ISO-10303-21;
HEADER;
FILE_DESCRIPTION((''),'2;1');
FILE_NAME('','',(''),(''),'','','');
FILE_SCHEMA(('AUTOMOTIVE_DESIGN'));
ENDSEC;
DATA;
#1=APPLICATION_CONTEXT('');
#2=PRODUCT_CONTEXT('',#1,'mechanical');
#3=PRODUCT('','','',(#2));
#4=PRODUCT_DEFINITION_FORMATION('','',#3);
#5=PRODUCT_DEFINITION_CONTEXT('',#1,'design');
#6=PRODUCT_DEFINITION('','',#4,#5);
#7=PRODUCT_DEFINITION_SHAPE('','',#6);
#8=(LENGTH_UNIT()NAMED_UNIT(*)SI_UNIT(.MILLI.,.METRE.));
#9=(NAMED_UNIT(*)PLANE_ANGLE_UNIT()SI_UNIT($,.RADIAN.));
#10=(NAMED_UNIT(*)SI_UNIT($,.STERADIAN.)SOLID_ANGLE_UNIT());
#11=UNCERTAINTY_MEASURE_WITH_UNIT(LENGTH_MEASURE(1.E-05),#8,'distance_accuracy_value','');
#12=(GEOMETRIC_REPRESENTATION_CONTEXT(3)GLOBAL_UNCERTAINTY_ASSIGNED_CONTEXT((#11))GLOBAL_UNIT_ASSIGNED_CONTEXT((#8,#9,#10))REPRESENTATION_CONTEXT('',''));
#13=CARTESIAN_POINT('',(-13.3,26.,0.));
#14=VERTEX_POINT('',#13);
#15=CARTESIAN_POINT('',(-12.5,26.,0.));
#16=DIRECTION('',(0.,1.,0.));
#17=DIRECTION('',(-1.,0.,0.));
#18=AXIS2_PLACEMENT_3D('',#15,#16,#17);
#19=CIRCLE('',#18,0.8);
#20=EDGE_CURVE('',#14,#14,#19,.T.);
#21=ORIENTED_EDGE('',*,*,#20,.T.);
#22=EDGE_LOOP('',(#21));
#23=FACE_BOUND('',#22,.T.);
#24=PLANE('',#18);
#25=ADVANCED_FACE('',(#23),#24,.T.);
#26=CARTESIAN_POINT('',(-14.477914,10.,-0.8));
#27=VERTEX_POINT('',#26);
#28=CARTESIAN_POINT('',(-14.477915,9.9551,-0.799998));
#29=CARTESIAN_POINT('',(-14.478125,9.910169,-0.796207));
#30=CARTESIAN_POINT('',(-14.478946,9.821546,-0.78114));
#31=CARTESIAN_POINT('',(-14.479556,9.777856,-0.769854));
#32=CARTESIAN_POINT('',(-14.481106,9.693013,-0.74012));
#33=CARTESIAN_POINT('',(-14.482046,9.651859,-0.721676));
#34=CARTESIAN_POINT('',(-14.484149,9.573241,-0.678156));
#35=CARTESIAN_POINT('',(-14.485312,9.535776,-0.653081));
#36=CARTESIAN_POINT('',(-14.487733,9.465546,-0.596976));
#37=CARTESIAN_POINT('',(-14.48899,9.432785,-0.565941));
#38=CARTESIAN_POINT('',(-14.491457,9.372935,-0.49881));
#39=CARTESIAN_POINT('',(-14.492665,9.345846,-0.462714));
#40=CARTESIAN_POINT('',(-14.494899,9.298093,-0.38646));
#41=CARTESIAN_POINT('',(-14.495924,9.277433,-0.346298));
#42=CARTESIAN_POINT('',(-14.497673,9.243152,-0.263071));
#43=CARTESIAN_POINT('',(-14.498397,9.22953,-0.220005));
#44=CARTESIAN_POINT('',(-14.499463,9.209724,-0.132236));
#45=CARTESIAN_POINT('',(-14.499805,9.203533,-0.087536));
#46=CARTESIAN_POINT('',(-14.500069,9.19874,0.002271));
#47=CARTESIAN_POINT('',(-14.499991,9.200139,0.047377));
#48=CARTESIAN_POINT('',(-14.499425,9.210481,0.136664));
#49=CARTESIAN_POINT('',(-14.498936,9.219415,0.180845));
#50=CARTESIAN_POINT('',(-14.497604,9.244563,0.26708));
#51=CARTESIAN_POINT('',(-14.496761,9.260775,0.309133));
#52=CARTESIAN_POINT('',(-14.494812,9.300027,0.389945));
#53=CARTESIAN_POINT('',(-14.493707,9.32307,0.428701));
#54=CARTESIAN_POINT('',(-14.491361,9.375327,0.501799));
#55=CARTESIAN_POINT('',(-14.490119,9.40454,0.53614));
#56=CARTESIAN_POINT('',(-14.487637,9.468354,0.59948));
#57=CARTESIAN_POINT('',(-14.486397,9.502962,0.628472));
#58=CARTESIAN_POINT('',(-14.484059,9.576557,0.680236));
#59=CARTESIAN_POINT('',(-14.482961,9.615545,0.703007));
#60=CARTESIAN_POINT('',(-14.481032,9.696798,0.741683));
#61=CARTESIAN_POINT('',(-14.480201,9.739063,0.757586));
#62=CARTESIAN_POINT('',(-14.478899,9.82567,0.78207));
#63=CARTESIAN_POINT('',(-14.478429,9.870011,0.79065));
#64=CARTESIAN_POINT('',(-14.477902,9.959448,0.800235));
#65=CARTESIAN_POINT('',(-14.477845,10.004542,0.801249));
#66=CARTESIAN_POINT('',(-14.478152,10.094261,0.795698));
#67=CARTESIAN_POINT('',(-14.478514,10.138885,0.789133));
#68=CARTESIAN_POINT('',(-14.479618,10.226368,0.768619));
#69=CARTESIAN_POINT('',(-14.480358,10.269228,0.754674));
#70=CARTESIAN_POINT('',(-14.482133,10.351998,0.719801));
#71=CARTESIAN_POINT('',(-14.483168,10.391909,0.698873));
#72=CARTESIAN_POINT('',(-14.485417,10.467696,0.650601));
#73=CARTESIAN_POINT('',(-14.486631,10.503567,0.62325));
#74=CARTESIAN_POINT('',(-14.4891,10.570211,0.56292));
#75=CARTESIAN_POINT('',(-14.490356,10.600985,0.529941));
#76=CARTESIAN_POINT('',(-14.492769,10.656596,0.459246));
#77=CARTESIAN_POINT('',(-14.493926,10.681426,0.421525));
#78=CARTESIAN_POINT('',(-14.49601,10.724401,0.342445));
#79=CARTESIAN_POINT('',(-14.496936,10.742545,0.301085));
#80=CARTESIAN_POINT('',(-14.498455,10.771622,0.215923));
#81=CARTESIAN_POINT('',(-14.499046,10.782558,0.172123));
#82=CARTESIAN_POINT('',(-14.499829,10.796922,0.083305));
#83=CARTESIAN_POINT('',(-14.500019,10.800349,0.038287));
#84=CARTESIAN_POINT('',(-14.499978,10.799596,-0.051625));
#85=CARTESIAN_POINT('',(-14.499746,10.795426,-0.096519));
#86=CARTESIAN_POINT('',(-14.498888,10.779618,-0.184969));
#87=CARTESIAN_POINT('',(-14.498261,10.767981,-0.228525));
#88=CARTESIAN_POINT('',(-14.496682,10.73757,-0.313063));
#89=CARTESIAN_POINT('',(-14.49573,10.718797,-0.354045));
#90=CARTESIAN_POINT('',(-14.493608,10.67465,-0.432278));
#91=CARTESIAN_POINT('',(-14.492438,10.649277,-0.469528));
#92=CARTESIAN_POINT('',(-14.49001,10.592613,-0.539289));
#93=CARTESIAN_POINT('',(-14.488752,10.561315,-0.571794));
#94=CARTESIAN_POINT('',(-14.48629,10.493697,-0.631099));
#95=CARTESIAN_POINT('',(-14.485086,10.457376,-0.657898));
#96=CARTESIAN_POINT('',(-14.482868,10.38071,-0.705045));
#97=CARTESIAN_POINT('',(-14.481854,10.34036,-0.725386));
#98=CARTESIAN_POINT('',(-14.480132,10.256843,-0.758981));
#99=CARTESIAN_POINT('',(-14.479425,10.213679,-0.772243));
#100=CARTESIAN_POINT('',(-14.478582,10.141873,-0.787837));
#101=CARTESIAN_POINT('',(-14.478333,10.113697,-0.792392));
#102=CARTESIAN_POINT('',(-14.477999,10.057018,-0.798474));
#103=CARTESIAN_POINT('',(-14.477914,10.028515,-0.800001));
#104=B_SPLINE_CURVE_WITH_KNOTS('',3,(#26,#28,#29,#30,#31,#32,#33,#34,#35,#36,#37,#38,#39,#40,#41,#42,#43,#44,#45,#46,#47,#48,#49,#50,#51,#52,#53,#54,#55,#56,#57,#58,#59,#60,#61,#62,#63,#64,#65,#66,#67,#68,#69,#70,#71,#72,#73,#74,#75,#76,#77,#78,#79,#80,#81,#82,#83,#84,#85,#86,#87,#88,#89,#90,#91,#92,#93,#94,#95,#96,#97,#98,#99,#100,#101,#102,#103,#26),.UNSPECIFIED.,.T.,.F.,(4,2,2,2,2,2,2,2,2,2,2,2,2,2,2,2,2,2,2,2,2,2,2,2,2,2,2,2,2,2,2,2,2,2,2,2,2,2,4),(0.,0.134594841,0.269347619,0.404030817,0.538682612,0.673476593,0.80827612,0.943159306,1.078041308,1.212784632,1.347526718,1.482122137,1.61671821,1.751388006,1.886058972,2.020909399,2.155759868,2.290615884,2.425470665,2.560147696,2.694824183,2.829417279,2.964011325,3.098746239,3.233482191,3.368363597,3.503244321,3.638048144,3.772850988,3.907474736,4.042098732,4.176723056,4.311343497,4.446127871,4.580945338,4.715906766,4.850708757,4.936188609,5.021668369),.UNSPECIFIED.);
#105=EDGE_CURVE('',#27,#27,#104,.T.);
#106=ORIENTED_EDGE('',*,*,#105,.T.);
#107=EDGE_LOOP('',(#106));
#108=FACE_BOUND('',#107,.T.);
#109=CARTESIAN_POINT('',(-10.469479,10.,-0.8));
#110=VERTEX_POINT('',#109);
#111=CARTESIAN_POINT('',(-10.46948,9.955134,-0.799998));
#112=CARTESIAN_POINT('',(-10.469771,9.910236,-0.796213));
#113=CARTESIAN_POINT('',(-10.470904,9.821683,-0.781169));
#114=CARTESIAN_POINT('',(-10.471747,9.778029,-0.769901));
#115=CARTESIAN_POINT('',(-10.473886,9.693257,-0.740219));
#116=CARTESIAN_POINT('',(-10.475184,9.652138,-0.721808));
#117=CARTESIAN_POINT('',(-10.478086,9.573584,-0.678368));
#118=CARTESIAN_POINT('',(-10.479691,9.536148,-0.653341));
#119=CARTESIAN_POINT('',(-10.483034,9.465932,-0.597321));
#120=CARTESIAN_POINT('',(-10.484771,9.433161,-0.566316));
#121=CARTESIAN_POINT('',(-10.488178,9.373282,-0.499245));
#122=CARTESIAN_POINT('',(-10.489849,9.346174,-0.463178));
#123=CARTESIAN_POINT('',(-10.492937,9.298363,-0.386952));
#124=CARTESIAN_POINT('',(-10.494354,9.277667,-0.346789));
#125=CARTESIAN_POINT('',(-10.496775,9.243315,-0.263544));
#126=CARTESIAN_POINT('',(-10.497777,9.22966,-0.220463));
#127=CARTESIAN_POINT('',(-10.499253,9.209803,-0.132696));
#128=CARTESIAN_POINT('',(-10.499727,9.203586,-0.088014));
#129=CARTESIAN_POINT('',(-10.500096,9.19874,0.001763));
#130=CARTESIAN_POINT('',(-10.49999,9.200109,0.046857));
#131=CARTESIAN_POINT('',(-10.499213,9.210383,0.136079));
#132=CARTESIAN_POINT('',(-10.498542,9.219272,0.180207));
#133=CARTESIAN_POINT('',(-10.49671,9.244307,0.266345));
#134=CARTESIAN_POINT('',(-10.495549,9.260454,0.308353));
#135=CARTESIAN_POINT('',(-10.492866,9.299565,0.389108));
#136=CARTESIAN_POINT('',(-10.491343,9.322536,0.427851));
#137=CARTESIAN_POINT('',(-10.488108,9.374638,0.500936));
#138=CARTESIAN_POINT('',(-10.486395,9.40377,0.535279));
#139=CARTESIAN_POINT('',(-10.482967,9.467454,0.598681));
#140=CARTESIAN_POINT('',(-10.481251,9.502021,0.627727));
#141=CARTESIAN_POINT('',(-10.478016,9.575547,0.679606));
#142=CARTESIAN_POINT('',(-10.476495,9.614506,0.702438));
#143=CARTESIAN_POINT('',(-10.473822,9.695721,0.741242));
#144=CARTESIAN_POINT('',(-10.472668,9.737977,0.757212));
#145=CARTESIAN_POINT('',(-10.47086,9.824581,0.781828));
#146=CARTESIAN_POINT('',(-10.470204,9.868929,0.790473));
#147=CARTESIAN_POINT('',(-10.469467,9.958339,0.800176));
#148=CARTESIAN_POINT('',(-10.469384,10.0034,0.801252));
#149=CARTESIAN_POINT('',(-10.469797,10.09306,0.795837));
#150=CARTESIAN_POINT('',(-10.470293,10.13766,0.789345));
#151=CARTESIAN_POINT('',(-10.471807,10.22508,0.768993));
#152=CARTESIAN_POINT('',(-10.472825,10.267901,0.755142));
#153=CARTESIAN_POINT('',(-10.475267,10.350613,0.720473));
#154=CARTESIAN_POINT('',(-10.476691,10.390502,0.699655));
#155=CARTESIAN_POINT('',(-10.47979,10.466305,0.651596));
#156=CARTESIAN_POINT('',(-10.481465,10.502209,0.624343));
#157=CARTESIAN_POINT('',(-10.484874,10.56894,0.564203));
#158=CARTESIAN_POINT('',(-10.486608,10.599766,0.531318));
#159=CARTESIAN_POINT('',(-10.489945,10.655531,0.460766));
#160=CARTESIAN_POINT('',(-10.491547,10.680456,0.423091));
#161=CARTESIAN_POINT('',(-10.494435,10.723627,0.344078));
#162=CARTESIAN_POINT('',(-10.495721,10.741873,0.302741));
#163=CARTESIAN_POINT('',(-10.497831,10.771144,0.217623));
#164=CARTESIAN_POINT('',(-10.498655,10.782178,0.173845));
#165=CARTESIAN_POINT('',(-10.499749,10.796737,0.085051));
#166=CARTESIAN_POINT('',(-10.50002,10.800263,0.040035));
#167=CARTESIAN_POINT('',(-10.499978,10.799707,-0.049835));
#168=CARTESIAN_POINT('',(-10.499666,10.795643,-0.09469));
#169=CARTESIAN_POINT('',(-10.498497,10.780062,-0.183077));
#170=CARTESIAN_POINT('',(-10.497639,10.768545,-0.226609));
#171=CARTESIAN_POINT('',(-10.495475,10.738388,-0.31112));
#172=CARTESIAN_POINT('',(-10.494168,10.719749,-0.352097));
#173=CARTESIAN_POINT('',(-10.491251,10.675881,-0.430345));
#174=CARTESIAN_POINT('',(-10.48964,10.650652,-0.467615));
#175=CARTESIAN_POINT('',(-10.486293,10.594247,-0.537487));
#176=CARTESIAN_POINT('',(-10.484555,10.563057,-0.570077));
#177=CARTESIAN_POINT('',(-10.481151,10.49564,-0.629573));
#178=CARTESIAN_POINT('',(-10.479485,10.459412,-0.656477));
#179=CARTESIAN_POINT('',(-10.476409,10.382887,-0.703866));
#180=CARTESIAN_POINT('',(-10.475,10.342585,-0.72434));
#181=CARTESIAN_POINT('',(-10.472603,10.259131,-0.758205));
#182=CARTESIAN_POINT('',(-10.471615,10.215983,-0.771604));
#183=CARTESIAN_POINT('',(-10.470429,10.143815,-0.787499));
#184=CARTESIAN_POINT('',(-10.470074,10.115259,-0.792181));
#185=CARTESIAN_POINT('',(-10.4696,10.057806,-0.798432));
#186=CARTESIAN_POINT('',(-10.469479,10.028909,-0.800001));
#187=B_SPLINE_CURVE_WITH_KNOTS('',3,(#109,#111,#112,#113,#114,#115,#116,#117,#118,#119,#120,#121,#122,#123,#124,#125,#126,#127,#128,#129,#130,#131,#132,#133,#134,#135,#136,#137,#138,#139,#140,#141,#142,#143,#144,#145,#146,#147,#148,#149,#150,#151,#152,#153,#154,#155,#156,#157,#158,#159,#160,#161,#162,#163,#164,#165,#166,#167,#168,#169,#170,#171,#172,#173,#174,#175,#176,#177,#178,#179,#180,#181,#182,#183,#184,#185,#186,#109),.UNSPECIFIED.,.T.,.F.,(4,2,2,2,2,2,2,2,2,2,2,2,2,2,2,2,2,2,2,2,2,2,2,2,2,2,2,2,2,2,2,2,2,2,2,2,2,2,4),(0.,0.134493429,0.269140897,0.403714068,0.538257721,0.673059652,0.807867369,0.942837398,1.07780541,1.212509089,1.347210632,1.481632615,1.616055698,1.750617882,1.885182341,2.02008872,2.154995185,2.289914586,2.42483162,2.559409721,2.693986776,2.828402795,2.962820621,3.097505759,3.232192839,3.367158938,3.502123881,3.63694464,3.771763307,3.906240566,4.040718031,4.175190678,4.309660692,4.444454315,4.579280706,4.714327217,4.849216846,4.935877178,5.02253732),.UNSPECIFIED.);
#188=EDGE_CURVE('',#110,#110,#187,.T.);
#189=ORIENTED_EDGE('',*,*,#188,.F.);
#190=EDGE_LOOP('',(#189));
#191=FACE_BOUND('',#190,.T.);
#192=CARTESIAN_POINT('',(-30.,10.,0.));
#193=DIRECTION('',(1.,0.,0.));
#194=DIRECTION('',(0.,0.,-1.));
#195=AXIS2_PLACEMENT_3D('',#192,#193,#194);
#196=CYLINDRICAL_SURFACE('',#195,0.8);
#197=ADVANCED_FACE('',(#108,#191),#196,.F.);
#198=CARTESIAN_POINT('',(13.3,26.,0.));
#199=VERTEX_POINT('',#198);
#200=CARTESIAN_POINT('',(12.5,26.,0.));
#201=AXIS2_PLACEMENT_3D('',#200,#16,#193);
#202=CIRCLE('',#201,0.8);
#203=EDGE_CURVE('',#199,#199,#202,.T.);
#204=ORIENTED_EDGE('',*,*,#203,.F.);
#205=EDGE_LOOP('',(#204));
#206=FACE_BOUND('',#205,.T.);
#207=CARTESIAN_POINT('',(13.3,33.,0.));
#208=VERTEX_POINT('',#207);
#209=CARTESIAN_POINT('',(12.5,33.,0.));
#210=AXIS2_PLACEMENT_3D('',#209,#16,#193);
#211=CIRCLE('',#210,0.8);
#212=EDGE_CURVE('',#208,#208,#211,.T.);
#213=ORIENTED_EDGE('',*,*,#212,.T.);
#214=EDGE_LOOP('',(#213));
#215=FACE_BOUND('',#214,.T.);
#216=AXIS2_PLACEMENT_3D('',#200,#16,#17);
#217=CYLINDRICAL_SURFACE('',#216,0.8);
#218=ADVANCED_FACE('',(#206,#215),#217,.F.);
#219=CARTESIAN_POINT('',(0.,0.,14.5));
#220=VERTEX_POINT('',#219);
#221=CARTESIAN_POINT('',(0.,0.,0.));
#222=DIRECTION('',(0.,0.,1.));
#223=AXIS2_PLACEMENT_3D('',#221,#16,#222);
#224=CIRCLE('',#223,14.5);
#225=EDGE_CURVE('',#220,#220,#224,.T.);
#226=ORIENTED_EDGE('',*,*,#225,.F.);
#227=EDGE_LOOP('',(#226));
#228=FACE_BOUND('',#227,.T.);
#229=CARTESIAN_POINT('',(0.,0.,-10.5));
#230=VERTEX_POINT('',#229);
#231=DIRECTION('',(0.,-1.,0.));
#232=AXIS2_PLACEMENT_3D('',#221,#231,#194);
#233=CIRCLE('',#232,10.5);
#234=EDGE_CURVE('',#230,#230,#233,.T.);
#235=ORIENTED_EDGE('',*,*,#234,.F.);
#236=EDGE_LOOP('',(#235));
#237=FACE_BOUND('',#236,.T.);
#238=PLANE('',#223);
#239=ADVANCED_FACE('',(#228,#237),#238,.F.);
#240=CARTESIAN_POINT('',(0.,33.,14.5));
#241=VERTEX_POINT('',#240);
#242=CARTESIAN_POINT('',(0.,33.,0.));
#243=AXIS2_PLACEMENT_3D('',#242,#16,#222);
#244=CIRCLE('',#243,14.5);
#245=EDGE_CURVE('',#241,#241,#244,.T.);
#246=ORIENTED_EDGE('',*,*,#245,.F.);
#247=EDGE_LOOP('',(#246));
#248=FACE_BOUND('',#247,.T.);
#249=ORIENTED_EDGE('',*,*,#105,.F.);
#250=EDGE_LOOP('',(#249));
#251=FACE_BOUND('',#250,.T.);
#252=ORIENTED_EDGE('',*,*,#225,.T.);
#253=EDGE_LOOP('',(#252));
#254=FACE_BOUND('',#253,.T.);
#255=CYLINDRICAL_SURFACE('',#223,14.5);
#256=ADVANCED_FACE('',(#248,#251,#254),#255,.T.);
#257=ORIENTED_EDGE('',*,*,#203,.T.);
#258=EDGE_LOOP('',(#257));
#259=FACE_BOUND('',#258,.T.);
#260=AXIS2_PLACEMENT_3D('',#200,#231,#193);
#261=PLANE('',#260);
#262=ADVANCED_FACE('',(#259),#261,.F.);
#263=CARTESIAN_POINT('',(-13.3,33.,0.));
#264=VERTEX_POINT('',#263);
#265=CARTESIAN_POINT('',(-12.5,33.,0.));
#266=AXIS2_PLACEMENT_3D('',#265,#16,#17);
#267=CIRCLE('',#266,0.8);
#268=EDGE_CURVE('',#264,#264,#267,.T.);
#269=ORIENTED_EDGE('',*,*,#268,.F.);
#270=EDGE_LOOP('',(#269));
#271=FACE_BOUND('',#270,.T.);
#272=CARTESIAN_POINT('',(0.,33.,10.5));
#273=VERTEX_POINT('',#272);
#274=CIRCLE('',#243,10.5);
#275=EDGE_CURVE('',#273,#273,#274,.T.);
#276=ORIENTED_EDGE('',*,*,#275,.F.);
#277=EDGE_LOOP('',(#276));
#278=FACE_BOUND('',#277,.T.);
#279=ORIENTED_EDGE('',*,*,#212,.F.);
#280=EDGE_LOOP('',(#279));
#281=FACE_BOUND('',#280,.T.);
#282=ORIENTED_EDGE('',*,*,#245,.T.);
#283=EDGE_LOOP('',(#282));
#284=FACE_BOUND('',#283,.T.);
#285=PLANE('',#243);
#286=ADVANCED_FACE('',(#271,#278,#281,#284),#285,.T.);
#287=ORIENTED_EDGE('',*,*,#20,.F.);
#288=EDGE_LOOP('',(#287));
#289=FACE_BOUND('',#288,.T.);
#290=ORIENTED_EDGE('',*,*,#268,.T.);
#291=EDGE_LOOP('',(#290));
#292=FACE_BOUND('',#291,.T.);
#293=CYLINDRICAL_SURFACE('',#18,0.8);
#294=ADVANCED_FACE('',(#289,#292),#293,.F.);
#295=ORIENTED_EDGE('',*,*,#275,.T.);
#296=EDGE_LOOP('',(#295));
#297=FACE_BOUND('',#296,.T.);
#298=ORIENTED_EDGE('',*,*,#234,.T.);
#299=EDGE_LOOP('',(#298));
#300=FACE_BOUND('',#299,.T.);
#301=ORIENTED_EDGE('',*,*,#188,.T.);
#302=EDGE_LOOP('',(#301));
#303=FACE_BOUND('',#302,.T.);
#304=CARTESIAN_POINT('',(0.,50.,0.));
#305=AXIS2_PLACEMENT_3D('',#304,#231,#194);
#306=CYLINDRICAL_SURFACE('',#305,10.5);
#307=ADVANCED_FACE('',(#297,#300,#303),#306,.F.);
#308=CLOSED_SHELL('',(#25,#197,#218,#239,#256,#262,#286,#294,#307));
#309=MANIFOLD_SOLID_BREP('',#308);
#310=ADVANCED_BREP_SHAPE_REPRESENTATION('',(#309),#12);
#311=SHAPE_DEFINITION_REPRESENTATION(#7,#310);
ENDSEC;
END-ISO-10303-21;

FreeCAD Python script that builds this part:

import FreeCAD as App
import Part
import Sketcher
Q = App.Units.Quantity

doc = App.newDocument("Part")
body = doc.addObject("PartDesign::Body", "Body")

# Sketch on XZ plane
sketch1 = body.newObject("Sketcher::SketchObject", "Sketch")
sketch1.AttachmentSupport = (doc.getObject("XZ_Plane"), [""])
sketch1.MapMode = "FlatFace"
sketch1.addGeometry([
    Part.Circle(App.Vector(0, 0, 0), App.Vector(0, 0, 1), 13),
    Part.Circle(App.Vector(0, 0, 0), App.Vector(0, 0, 1), 9),
], False)
sketch1.addConstraint([
    Sketcher.Constraint("Coincident", 0, 3, -1, 1),
    Sketcher.Constraint("Coincident", 1, 3, -1, 1),
    Sketcher.Constraint("Diameter", 0, Q("26 mm")),
    Sketcher.Constraint("Diameter", 1, Q("18.344 mm")),
])
pad1 = body.newObject("PartDesign::Pad", "Pad")
pad1.Profile = sketch1
pad1.Length = 25
pad1.Reversed = True

# Sketch on XZ plane
sketch2 = body.newObject("Sketcher::SketchObject", "Sketch001")
sketch2.AttachmentSupport = (doc.getObject("XZ_Plane"), [""])
sketch2.MapMode = "FlatFace"
sketch2.addGeometry(Part.Circle(App.Vector(0, 0, 0), App.Vector(0, 0, 1), 10), False)
sketch2.addConstraint([
    Sketcher.Constraint("Coincident", 0, 3, -1, 1),
    Sketcher.Constraint("Diameter", 0, Q("20.344 mm")),
])
pocket1 = body.newObject("PartDesign::Pocket", "Pocket")
pocket1.Profile = sketch2
pocket1.Length = 50

# Sketch on XZ plane
sketch3 = body.newObject("Sketcher::SketchObject", "Sketch002")
sketch3.AttachmentSupport = (doc.getObject("XZ_Plane"), [""])
sketch3.MapMode = "FlatFace"
sketch3.AttachmentOffset = App.Placement(App.Vector(0, 0, -25), App.Rotation())
sketch3.addGeometry([
    Part.Circle(App.Vector(0, 0, 0), App.Vector(0, 0, 1), 13),
    Part.Circle(App.Vector(0, 0, 0), App.Vector(0, 0, 1), 10),
], False)
sketch3.addConstraint([
    Sketcher.Constraint("Coincident", 0, 3, -1, 1),
    Sketcher.Constraint("Coincident", 1, 3, -1, 1),
    Sketcher.Constraint("Diameter", 0, Q("26 mm")),
    Sketcher.Constraint("Diameter", 1, Q("20.344 mm")),
])
pad2 = body.newObject("PartDesign::Pad", "Pad001")
pad2.Profile = sketch3
pad2.Length = 8
pad2.Reversed = True

# Sketch on XZ plane
sketch4 = body.newObject("Sketcher::SketchObject", "Sketch003")
sketch4.AttachmentSupport = (doc.getObject("XZ_Plane"), [""])
sketch4.MapMode = "FlatFace"
sketch4.addGeometry(Part.Circle(App.Vector(0, 0, 0), App.Vector(0, 0, 1), 10), False)
sketch4.addConstraint([
    Sketcher.Constraint("Coincident", 0, 3, -1, 1),
    Sketcher.Constraint("Diameter", 0, Q("21 mm")),
])
pocket2 = body.newObject("PartDesign::Pocket", "Pocket001")
pocket2.Profile = sketch4
pocket2.Length = 50

# Sketch on XZ plane
sketch5 = body.newObject("Sketcher::SketchObject", "Sketch004")
sketch5.AttachmentSupport = (doc.getObject("XZ_Plane"), [""])
sketch5.MapMode = "FlatFace"
sketch5.addGeometry([
    Part.Circle(App.Vector(0, 0, 0), App.Vector(0, 0, 1), 14),
    Part.Circle(App.Vector(0, 0, 0), App.Vector(0, 0, 1), 13),
], False)
sketch5.addConstraint([
    Sketcher.Constraint("Coincident", 0, 3, -1, 1),
    Sketcher.Constraint("Coincident", 1, 3, -1, 1),
    Sketcher.Constraint("Diameter", 0, Q("29 mm")),
    Sketcher.Constraint("Diameter", 1, Q("26 mm")),
])
pad3 = body.newObject("PartDesign::Pad", "Pad002")
pad3.Profile = sketch5
pad3.Length = 33
pad3.Reversed = True

# Sketch on YZ plane
sketch6 = body.newObject("Sketcher::SketchObject", "Sketch005")
sketch6.AttachmentSupport = (doc.getObject("YZ_Plane"), [""])
sketch6.MapMode = "FlatFace"
sketch6.addGeometry(Part.Circle(App.Vector(10, 0, 0), App.Vector(0, 0, 1), 0.8), False)
sketch6.addConstraint([
    Sketcher.Constraint("PointOnObject", 0, 3, -1),
    Sketcher.Constraint("Diameter", 0, Q("1.6 mm")),
    Sketcher.Constraint("DistanceX", -1, 1, 0, 3, Q("10 mm")),
])
pocket3 = body.newObject("PartDesign::Pocket", "Pocket002")
pocket3.Profile = sketch6
pocket3.Length = 30

# Sketch on XZ plane
sketch7 = body.newObject("Sketcher::SketchObject", "Sketch006")
sketch7.AttachmentSupport = (doc.getObject("XZ_Plane"), [""])
sketch7.MapMode = "FlatFace"
sketch7.AttachmentOffset = App.Placement(App.Vector(0, 0, -33), App.Rotation())
sketch7.addGeometry([
    Part.Circle(App.Vector(-12.5, 0, 0), App.Vector(0, 0, 1), 0.8),
    Part.Circle(App.Vector(12.5, 0, 0), App.Vector(0, 0, 1), 0.8),
], False)
sketch7.addConstraint([
    Sketcher.Constraint("Equal", 0, 1),
    Sketcher.Constraint("Symmetric", 0, 3, 1, 3, -1, 1),
    Sketcher.Constraint("PointOnObject", 0, 3, -1),
    Sketcher.Constraint("Diameter", 0, Q("1.6 mm")),
    Sketcher.Constraint("DistanceX", 0, 3, 1, 3, Q("25 mm")),
])
pocket4 = body.newObject("PartDesign::Pocket", "Pocket003")
pocket4.Profile = sketch7
pocket4.Length = 7
pocket4.Reversed = True

doc.recompute()
